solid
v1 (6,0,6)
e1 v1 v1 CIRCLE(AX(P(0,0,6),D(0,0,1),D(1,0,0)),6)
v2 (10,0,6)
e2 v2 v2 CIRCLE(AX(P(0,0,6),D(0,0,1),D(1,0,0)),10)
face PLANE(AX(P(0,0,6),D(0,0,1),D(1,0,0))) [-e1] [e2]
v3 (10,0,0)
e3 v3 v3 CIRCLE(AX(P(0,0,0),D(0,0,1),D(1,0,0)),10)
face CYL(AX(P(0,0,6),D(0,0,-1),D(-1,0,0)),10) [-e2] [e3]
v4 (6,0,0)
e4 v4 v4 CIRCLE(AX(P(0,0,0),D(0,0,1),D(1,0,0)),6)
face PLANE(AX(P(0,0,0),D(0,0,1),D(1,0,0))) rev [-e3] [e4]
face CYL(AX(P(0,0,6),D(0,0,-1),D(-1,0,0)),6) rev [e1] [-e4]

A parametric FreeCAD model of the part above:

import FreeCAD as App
import Part
import Sketcher

V = App.Vector

doc = App.newDocument("Part")
params = doc.addObject("Spreadsheet::Sheet", "Params")
for row, (alias, value) in enumerate([
    ("sketch1_diameter", "20 mm"),
    ("sketch1_diameter2", "12 mm"),
    ("pad1_length", "6 mm"),
], start=1):
    params.set(f"A{row}", alias)
    params.set(f"B{row}", "=" + value)
    params.setAlias(f"B{row}", alias)

body = doc.addObject("PartDesign::Body", "Body")

sketch1 = body.newObject("Sketcher::SketchObject", "Sketch")
sketch1.AttachmentSupport = (doc.getObject("XY_Plane"), [""])
sketch1.MapMode = "FlatFace"
sketch1.addGeometry([
    Part.Circle(V(0, 0, 0), V(0, 0, 1), 10),
    Part.Circle(V(0, 0, 0), V(0, 0, 1), 6),
], False)
sketch1.addConstraint([
    Sketcher.Constraint("Coincident", 0, 3, -1, 1),
    Sketcher.Constraint("Coincident", 1, 3, -1, 1),
    Sketcher.Constraint("Diameter", 0, 20.0),
    Sketcher.Constraint("Diameter", 1, 12.0),
])
sketch1.setExpression("Constraints[2]", "Params.sketch1_diameter")
sketch1.setExpression("Constraints[3]", "Params.sketch1_diameter2")
pad1 = body.newObject("PartDesign::Pad", "Pad")
pad1.Profile = sketch1
pad1.setExpression("Length", "Params.pad1_length")

doc.recompute()
